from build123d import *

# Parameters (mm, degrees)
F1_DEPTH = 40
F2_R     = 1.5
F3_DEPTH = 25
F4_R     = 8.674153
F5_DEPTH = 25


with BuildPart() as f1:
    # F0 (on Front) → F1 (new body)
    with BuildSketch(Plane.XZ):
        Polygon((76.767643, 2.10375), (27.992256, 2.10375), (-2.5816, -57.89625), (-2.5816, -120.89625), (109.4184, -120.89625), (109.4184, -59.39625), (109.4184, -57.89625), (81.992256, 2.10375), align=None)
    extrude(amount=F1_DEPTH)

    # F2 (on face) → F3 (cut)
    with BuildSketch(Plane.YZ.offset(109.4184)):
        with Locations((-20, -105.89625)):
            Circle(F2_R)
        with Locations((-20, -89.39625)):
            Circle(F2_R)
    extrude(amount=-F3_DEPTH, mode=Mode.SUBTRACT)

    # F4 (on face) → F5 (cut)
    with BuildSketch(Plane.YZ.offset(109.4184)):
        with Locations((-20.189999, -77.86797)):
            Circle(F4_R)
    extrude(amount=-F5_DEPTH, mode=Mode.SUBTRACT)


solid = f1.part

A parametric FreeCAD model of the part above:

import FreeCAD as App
import Part
import Sketcher
from FreeCAD import Vector
Q = App.Units.Quantity


def add_polygon(sketch, points):
    """Adds a closed chain of lines whose ends are joined by coincident constraints."""
    first, n = sketch.GeometryCount, len(points)
    for a, b in zip(points, points[1:] + points[:1]):
        sketch.addGeometry(Part.LineSegment(App.Vector(*a, 0), App.Vector(*b, 0)), False)
    for i in range(n):
        sketch.addConstraint(Sketcher.Constraint("Coincident", first + i, 2, first + (i + 1) % n, 1))

doc = App.newDocument("Part")
body = doc.addObject("PartDesign::Body", "Body")

# Sketch on XZ plane
sketch1 = body.newObject("Sketcher::SketchObject", "Sketch")
sketch1.AttachmentSupport = (doc.getObject("XZ_Plane"), [""])
sketch1.MapMode = "FlatFace"
add_polygon(sketch1, [(28, 2), (-3, -58), (-3, -121), (109, -121), (109, -58), (82, 2)])  # lines 0-5
sketch1.addConstraint([
    Sketcher.Constraint("Vertical", 1),
    Sketcher.Constraint("Horizontal", 2),
    Sketcher.Constraint("Vertical", 3),
    Sketcher.Constraint("Horizontal", 5),
    Sketcher.Constraint("Horizontal", 0, 2, 3, 2),
    Sketcher.Constraint("DistanceX", 2, 1, 2, 2, Q("112 mm")),
    Sketcher.Constraint("DistanceX", 5, 2, 5, 1, Q("54 mm")),
    Sketcher.Constraint("DistanceY", 1, 2, 1, 1, Q("63 mm")),
    Sketcher.Constraint("DistanceY", 3, 2, 4, 2, Q("60 mm")),
    Sketcher.Constraint("DistanceX", 0, 2, -1, 1, Q("2.5816 mm")),
    Sketcher.Constraint("Distance", 0, Q("67.340632 mm")),
    Sketcher.Constraint("DistanceY", 0, 2, -1, 1, Q("57.89625 mm")),
])
pad1 = body.newObject("PartDesign::Pad", "Pad")
pad1.Profile = sketch1
pad1.Length = 40

# Sketch on YZ plane
sketch2 = body.newObject("Sketcher::SketchObject", "Sketch001")
sketch2.AttachmentSupport = (doc.getObject("YZ_Plane"), [""])
sketch2.MapMode = "FlatFace"
sketch2.AttachmentOffset = App.Placement(Vector(0, 0, 109.4184), App.Rotation())
sketch2.addGeometry([
    Part.Circle(Vector(-20, -105.9, 0), Vector(0, 0, 1), 1.5),
    Part.Circle(Vector(-20, -89.4, 0), Vector(0, 0, 1), 1.5),
], False)
sketch2.addConstraint([
    Sketcher.Constraint("Equal", 0, 1),
    Sketcher.Constraint("Vertical", 0, 3, 1, 3),
    Sketcher.Constraint("Diameter", 0, Q("3 mm")),
    Sketcher.Constraint("DistanceX", 0, 3, -1, 1, Q("20 mm")),
    Sketcher.Constraint("DistanceY", 0, 3, 1, 3, Q("16.5 mm")),
    Sketcher.Constraint("DistanceY", 0, 3, -1, 1, Q("105.89625 mm")),
])
pocket1 = body.newObject("PartDesign::Pocket", "Pocket")
pocket1.Profile = sketch2
pocket1.Length = 25

# Sketch on YZ plane
sketch3 = body.newObject("Sketcher::SketchObject", "Sketch002")
sketch3.AttachmentSupport = (doc.getObject("YZ_Plane"), [""])
sketch3.MapMode = "FlatFace"
sketch3.AttachmentOffset = App.Placement(Vector(0, 0, 109.4184), App.Rotation())
sketch3.addGeometry(Part.Circle(Vector(-20, -78, 0), Vector(0, 0, 1), 9), False)
sketch3.addConstraint([
    Sketcher.Constraint("DistanceX", 0, 3, -1, 1, Q("20.189999 mm")),
    Sketcher.Constraint("Diameter", 0, Q("17.348306 mm")),
    Sketcher.Constraint("DistanceY", 0, 3, -1, 1, Q("77.86797 mm")),
])
pocket2 = body.newObject("PartDesign::Pocket", "Pocket001")
pocket2.Profile = sketch3
pocket2.Length = 25

doc.recompute()
